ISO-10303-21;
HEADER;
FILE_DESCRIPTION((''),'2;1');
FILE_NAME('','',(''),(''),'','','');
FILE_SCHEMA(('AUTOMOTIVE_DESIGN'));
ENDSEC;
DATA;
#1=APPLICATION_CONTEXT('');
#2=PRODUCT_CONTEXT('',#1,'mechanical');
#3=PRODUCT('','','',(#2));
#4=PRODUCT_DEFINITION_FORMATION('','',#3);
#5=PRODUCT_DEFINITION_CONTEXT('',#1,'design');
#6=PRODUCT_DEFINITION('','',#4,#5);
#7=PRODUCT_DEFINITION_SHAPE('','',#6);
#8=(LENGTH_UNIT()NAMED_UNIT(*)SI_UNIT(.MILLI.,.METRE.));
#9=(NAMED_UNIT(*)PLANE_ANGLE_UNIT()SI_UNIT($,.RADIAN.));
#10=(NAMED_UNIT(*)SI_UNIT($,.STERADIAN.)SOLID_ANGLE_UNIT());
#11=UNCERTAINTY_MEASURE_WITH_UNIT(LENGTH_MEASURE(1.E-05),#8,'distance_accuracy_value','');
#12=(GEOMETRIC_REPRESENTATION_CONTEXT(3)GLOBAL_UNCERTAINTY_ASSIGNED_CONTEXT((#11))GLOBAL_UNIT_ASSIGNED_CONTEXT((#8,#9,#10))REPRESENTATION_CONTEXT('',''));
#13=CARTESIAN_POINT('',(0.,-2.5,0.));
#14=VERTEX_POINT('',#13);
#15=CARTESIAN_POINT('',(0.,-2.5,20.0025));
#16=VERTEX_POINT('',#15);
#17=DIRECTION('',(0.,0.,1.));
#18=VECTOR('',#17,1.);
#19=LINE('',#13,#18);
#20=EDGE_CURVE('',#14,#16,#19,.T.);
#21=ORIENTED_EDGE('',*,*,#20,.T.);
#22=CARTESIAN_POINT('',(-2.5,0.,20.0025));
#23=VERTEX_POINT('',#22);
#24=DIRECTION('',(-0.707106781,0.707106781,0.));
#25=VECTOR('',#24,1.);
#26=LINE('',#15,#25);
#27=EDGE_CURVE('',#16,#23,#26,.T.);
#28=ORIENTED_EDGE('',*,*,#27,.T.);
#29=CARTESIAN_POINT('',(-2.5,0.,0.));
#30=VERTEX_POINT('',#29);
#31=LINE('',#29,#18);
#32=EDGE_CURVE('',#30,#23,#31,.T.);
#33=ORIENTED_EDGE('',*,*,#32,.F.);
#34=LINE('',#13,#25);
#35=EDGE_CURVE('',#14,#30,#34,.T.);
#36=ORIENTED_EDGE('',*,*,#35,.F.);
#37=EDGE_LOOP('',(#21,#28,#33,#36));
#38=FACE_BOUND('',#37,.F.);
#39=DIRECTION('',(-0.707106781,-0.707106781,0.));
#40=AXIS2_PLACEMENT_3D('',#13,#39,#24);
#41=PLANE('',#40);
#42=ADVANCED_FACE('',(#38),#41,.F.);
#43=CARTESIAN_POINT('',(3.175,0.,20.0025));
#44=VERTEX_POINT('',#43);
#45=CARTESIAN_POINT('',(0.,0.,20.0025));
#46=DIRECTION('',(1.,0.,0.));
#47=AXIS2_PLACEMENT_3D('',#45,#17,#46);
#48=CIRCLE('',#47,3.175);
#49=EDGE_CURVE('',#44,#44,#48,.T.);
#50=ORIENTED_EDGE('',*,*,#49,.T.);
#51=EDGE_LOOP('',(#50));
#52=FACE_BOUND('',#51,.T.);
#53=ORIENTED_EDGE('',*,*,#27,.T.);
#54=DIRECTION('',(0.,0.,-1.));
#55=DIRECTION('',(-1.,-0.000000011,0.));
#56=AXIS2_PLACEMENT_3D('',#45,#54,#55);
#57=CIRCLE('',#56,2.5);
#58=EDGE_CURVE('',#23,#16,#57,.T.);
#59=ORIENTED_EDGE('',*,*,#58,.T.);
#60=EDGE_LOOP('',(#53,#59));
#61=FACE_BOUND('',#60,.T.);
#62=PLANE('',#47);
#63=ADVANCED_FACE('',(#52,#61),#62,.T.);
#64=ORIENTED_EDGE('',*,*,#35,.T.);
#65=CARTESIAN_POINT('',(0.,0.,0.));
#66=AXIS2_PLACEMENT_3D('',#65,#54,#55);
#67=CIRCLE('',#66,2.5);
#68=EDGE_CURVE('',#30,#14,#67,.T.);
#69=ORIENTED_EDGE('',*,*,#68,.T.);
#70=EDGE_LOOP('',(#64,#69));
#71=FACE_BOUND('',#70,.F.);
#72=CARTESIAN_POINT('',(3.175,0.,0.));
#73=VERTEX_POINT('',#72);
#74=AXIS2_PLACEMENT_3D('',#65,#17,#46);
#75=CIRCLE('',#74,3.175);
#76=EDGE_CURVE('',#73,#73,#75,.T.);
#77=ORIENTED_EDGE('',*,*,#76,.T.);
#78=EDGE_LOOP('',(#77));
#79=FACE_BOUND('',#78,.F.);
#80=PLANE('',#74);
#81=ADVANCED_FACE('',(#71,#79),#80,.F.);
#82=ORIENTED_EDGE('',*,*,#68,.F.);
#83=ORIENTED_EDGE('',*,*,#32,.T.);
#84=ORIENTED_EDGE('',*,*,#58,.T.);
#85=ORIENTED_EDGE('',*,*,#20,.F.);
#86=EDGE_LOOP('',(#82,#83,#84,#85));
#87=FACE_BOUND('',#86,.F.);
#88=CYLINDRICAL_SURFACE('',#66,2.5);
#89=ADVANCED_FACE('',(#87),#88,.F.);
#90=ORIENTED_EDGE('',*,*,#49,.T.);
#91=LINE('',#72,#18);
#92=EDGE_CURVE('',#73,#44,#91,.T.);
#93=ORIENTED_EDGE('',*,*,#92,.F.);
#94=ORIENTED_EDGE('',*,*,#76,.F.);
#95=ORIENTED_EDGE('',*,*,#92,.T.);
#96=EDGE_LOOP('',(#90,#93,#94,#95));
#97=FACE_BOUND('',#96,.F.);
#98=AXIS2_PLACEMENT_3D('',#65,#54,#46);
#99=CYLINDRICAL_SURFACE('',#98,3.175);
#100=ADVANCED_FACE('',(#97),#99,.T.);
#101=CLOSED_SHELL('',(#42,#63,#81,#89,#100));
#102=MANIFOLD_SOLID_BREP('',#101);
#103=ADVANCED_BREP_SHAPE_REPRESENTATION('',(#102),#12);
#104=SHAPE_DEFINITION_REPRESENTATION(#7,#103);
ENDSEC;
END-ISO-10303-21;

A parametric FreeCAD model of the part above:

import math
import FreeCAD as App
import Part
import Sketcher

doc = App.newDocument("Part")
body = doc.addObject("PartDesign::Body", "Body")

sketch1 = body.newObject("Sketcher::SketchObject", "Sketch")
sketch1.AttachmentSupport = (doc.getObject("XY_Plane"), [""])
sketch1.MapMode = "FlatFace"
sketch1.addGeometry([
    Part.Circle(App.Vector(0, 0, 0), App.Vector(0, 0, 1), 3.175),
    Part.LineSegment(App.Vector(0, -2.5, 0), App.Vector(-2.5, 0, 0)),
    Part.ArcOfCircle(Part.Circle(App.Vector(0, 0, 0), App.Vector(0, 0, 1), 2.5), math.radians(-90.000001), math.radians(180.000001)),
], False)
sketch1.addConstraint([
    Sketcher.Constraint("Coincident", 1, 1, 2, 1),
    Sketcher.Constraint("Coincident", 2, 2, 1, 2),
    Sketcher.Constraint("Coincident", 0, 3, -1, 1),
    Sketcher.Constraint("Coincident", 2, 3, -1, 1),
    Sketcher.Constraint("PointOnObject", 1, 1, -2),
    Sketcher.Constraint("PointOnObject", 2, 2, -1),
    Sketcher.Constraint("Radius", 2, 2.5),
    Sketcher.Constraint("Diameter", 0, 6.35),
])
pad1 = body.newObject("PartDesign::Pad", "Pad")
pad1.Profile = sketch1
pad1.Length = 20.0025

doc.recompute()
